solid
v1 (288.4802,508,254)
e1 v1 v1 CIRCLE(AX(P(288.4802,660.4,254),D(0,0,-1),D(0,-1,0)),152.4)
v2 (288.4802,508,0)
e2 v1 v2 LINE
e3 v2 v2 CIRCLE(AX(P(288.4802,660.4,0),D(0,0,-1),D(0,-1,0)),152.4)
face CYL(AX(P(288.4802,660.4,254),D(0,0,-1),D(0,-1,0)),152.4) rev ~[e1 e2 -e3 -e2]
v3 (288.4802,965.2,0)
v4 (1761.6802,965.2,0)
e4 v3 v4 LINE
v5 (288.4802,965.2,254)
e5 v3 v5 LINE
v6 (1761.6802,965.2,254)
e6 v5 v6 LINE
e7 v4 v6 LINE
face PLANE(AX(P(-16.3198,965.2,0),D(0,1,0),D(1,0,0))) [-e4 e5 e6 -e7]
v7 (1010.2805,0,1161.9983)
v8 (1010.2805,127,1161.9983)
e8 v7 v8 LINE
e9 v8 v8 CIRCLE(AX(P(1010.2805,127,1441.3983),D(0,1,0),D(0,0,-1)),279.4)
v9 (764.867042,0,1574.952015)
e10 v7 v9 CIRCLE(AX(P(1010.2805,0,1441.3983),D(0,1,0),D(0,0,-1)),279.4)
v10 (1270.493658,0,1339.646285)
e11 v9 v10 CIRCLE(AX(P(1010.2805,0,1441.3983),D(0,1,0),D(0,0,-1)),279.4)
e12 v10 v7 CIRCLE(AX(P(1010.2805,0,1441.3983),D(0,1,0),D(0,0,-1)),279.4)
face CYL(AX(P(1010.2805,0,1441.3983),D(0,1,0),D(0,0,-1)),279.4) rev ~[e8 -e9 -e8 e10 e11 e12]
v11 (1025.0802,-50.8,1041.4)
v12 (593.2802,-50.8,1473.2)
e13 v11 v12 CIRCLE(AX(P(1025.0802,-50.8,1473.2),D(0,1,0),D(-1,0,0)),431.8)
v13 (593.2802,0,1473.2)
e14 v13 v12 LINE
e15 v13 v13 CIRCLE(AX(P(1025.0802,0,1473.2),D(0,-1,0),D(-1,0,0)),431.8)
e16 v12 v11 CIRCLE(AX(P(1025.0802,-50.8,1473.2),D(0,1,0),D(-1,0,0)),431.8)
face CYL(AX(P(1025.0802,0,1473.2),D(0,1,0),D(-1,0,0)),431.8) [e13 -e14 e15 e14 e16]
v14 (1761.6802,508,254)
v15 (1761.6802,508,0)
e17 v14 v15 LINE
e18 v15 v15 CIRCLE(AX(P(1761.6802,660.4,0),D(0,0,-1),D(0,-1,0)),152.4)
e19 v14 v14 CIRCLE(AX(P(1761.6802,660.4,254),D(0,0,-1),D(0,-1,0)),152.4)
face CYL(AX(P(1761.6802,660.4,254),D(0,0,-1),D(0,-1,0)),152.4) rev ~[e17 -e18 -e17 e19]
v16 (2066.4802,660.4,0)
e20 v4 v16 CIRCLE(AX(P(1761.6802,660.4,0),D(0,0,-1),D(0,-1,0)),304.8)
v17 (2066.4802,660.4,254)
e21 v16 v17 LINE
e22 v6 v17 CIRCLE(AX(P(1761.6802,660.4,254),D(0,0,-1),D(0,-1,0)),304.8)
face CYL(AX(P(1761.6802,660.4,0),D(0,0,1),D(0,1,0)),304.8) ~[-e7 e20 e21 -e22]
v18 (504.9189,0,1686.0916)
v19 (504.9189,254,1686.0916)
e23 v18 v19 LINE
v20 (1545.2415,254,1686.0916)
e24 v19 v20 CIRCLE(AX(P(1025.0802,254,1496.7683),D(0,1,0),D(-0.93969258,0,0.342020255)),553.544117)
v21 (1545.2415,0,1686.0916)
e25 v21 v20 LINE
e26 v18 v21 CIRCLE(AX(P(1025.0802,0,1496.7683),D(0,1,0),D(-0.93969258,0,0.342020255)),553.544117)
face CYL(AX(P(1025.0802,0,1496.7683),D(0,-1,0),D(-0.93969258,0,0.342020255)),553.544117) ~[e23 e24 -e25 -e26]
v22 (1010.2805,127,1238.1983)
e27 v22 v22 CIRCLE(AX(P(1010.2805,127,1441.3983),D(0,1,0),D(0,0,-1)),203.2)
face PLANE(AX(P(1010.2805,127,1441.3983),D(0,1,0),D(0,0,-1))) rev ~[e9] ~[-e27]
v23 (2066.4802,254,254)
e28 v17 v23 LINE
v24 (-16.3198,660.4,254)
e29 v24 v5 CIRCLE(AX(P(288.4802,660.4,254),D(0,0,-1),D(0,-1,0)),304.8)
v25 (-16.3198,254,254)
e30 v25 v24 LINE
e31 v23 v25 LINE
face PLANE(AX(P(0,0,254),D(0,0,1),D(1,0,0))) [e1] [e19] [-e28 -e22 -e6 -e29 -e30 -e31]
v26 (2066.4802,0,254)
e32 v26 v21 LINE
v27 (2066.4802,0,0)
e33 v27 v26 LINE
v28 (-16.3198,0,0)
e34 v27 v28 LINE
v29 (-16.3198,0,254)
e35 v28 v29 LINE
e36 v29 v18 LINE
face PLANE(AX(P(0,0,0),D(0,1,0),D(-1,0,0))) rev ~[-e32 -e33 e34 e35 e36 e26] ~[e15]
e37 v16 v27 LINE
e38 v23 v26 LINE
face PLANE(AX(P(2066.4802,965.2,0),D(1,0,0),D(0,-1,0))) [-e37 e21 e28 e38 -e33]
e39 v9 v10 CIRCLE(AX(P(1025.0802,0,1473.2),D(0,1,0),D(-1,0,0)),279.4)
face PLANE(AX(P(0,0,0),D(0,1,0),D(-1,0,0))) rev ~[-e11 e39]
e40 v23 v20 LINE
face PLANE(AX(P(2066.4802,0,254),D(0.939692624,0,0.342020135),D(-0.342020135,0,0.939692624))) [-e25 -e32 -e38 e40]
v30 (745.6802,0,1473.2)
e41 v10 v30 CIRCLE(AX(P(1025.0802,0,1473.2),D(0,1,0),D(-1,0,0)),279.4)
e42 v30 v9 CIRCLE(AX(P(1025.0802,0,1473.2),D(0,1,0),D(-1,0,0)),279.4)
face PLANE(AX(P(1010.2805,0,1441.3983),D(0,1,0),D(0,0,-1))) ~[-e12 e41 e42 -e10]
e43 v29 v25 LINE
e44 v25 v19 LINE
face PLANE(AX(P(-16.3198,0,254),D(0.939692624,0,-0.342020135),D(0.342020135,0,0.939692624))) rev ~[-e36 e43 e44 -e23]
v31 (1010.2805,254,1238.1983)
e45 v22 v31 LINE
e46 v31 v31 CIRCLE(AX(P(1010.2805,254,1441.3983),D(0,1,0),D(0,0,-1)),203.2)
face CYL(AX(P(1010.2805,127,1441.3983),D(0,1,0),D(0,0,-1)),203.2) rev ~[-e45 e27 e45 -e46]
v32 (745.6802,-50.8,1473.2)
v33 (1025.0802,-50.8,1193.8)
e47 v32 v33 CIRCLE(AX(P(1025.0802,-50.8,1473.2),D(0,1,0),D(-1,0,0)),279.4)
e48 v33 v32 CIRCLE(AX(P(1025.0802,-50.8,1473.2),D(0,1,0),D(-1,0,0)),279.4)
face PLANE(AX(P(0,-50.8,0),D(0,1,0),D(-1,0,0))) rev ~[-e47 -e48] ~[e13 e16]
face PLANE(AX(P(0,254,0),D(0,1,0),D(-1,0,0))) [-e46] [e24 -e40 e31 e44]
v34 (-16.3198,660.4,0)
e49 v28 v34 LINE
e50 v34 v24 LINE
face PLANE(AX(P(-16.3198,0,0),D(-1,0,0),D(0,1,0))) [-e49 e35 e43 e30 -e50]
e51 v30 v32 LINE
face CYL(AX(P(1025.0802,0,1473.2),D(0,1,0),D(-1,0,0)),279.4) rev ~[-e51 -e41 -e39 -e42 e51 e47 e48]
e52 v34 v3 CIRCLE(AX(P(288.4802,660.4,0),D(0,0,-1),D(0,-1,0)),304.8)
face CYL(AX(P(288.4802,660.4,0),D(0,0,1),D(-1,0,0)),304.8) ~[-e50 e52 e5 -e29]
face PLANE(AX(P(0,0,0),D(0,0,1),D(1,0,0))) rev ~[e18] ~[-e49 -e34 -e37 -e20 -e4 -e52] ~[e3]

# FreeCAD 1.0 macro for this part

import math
import FreeCAD as App
import Part
import Sketcher
Q = App.Units.Quantity


def edges_at(feature, points):
    """Names of the edges that pass closest to the given points."""
    edges = feature.Shape.Edges
    near = lambda p: min(range(len(edges)), key=lambda i: edges[i].distToShape(Part.Vertex(*p))[0])
    return sorted({f"Edge{near(p) + 1}" for p in points})


def add_polygon(sketch, points):
    """Adds a closed chain of lines whose ends are joined by coincident constraints."""
    first, n = sketch.GeometryCount, len(points)
    for a, b in zip(points, points[1:] + points[:1]):
        sketch.addGeometry(Part.LineSegment(App.Vector(*a, 0), App.Vector(*b, 0)), False)
    for i in range(n):
        sketch.addConstraint(Sketcher.Constraint("Coincident", first + i, 2, first + (i + 1) % n, 1))

doc = App.newDocument("Part")
body = doc.addObject("PartDesign::Body", "Body")

# Sketch on XY plane
sketch1 = body.newObject("Sketcher::SketchObject", "Sketch")
sketch1.AttachmentSupport = (doc.getObject("XY_Plane"), [""])
sketch1.MapMode = "FlatFace"
add_polygon(sketch1, [(-16, 965), (-16, 0), (2066, 0), (2066, 965)])  # lines 0-3
sketch1.addConstraint(Sketcher.Constraint("Vertical", 0))
sketch1.addConstraint(Sketcher.Constraint("Horizontal", 1))
sketch1.addConstraint(Sketcher.Constraint("Vertical", 2))
sketch1.addConstraint(Sketcher.Constraint("Horizontal", 3))
sketch1.addConstraint(Sketcher.Constraint("PointOnObject", 0, 2, -1))
sketch1.addConstraint(Sketcher.Constraint("DistanceX", 1, 1, 1, 2, Q("82 in")))
sketch1.addConstraint(Sketcher.Constraint("DistanceY", 0, 2, 0, 1, Q("38 in")))
sketch1.addConstraint(Sketcher.Constraint("DistanceX", 0, 2, -1, 1, Q("0.6425 in")))
pad1 = body.newObject("PartDesign::Pad", "Pad")
pad1.Profile = sketch1
pad1.Length = Q("10 in")
doc.recompute()

fillet = body.newObject("PartDesign::Fillet", "Fillet")
fillet.Base = (pad1, edges_at(pad1, [(-16.32, 965.2, 127), (2066.48, 965.2, 127)]))
fillet.Radius = Q("12 in")

# Sketch on XY plane
sketch2 = body.newObject("Sketcher::SketchObject", "Sketch001")
sketch2.AttachmentSupport = (doc.getObject("XY_Plane"), [""])
sketch2.MapMode = "FlatFace"
sketch2.AttachmentOffset = App.Placement(App.Vector(0, 0, 10 * 25.4), App.Rotation())
sketch2.addGeometry(Part.Circle(App.Vector(288, 660, 0), App.Vector(0, 0, 1), 152), False)
sketch2.addConstraint(Sketcher.Constraint("Diameter", 0, Q("12 in")))
sketch2.addConstraint(Sketcher.Constraint("DistanceY", -1, 1, 0, 3, Q("26 in")))
sketch2.addConstraint(Sketcher.Constraint("DistanceX", -1, 1, 0, 3, Q("11.3575 in")))
doc.recompute()
hole = body.newObject("PartDesign::Hole", "Hole")
hole.Profile = sketch2
hole.ThreadType = "None"
hole.Diameter = Q("12 in")
hole.DepthType = "ThroughAll"

# Sketch on XY plane
sketch3 = body.newObject("Sketcher::SketchObject", "Sketch002")
sketch3.AttachmentSupport = (doc.getObject("XY_Plane"), [""])
sketch3.MapMode = "FlatFace"
sketch3.AttachmentOffset = App.Placement(App.Vector(0, 0, 10 * 25.4), App.Rotation())
sketch3.addGeometry(Part.Circle(App.Vector(1762, 660, 0), App.Vector(0, 0, 1), 152), False)
sketch3.addConstraint(Sketcher.Constraint("Diameter", 0, Q("12 in")))
sketch3.addConstraint(Sketcher.Constraint("DistanceY", -1, 1, 0, 3, Q("26 in")))
sketch3.addConstraint(Sketcher.Constraint("DistanceX", -1, 1, 0, 3, Q("69.3575 in")))
doc.recompute()
hole2 = body.newObject("PartDesign::Hole", "Hole001")
hole2.Profile = sketch3
hole2.ThreadType = "None"
hole2.Diameter = Q("12 in")
hole2.DepthType = "ThroughAll"

# Sketch on XZ plane
sketch4 = body.newObject("Sketcher::SketchObject", "Sketch003")
sketch4.AttachmentSupport = (doc.getObject("XZ_Plane"), [""])
sketch4.MapMode = "FlatFace"
sketch4.addGeometry(Part.LineSegment(App.Vector(2066, 254, 0), App.Vector(-16, 254, 0)), False)
sketch4.addGeometry(Part.LineSegment(App.Vector(-16, 254, 0), App.Vector(505, 1686, 0)), False)
sketch4.addGeometry(Part.ArcOfCircle(Part.Circle(App.Vector(1025, 1497, 0), App.Vector(0, 0, 1), 554), math.radians(20), math.radians(160)), False)
sketch4.addGeometry(Part.LineSegment(App.Vector(1545, 1686, 0), App.Vector(2066, 254, 0)), False)
sketch4.addConstraint(Sketcher.Constraint("Coincident", 0, 2, 1, 1))
sketch4.addConstraint(Sketcher.Constraint("Tangent", 1, 2, 2, 2))
sketch4.addConstraint(Sketcher.Constraint("Tangent", 2, 1, 3, 1))
sketch4.addConstraint(Sketcher.Constraint("Coincident", 3, 2, 0, 1))
sketch4.addConstraint(Sketcher.Constraint("Horizontal", 0))
sketch4.addConstraint(Sketcher.Constraint("Equal", 1, 3))
sketch4.addConstraint(Sketcher.Constraint("Distance", 1, Q("60 in")))
sketch4.addConstraint(Sketcher.Constraint("Angle", 1, Q("70 deg")))
sketch4.addConstraint(Sketcher.Constraint("DistanceX", 0, 2, 0, 1, Q("82 in")))
sketch4.addConstraint(Sketcher.Constraint("DistanceY", -1, 1, 0, 2, Q("10 in")))
sketch4.addConstraint(Sketcher.Constraint("DistanceX", -1, 1, 2, 3, Q("40.3575 in")))
pad2 = body.newObject("PartDesign::Pad", "Pad001")
pad2.Profile = sketch4
pad2.Length = Q("10 in")
pad2.Reversed = True

# Sketch on XZ plane
sketch5 = body.newObject("Sketcher::SketchObject", "Sketch004")
sketch5.AttachmentSupport = (doc.getObject("XZ_Plane"), [""])
sketch5.MapMode = "FlatFace"
sketch5.addGeometry(Part.Circle(App.Vector(1025, 1473, 0), App.Vector(0, 0, 1), 432), False)
sketch5.addGeometry(Part.Circle(App.Vector(1025, 1473, 0), App.Vector(0, 0, 1), 279), False)
sketch5.addConstraint(Sketcher.Constraint("Coincident", 1, 3, 0, 3))
sketch5.addConstraint(Sketcher.Constraint("Diameter", 0, Q("34 in")))
sketch5.addConstraint(Sketcher.Constraint("Diameter", 1, Q("22 in")))
sketch5.addConstraint(Sketcher.Constraint("DistanceY", -1, 1, 0, 3, Q("58 in")))
sketch5.addConstraint(Sketcher.Constraint("DistanceX", -1, 1, 0, 3, Q("40.3575 in")))
pad3 = body.newObject("PartDesign::Pad", "Pad002")
pad3.Profile = sketch5
pad3.Length = Q("2 in")

# Sketch on XZ plane
sketch6 = body.newObject("Sketcher::SketchObject", "Sketch005")
sketch6.AttachmentSupport = (doc.getObject("XZ_Plane"), [""])
sketch6.MapMode = "FlatFace"
sketch6.addGeometry(Part.Circle(App.Vector(1010, 1441, 0), App.Vector(0, 0, 1), 203), False)
sketch6.addConstraint(Sketcher.Constraint("Diameter", 0, Q("16 in")))
sketch6.addConstraint(Sketcher.Constraint("DistanceX", -1, 1, 0, 3, 1010.2805))
sketch6.addConstraint(Sketcher.Constraint("DistanceY", -1, 1, 0, 3, 1441.3983))
doc.recompute()
hole3 = body.newObject("PartDesign::Hole", "Hole002")
hole3.Profile = sketch6
hole3.ThreadType = "None"
hole3.Diameter = Q("16 in")
hole3.DepthType = "ThroughAll"
hole3.HoleCutType = "Counterbore"
hole3.HoleCutDiameter = Q("22 in")
hole3.HoleCutDepth = Q("5 in")

doc.recompute()
